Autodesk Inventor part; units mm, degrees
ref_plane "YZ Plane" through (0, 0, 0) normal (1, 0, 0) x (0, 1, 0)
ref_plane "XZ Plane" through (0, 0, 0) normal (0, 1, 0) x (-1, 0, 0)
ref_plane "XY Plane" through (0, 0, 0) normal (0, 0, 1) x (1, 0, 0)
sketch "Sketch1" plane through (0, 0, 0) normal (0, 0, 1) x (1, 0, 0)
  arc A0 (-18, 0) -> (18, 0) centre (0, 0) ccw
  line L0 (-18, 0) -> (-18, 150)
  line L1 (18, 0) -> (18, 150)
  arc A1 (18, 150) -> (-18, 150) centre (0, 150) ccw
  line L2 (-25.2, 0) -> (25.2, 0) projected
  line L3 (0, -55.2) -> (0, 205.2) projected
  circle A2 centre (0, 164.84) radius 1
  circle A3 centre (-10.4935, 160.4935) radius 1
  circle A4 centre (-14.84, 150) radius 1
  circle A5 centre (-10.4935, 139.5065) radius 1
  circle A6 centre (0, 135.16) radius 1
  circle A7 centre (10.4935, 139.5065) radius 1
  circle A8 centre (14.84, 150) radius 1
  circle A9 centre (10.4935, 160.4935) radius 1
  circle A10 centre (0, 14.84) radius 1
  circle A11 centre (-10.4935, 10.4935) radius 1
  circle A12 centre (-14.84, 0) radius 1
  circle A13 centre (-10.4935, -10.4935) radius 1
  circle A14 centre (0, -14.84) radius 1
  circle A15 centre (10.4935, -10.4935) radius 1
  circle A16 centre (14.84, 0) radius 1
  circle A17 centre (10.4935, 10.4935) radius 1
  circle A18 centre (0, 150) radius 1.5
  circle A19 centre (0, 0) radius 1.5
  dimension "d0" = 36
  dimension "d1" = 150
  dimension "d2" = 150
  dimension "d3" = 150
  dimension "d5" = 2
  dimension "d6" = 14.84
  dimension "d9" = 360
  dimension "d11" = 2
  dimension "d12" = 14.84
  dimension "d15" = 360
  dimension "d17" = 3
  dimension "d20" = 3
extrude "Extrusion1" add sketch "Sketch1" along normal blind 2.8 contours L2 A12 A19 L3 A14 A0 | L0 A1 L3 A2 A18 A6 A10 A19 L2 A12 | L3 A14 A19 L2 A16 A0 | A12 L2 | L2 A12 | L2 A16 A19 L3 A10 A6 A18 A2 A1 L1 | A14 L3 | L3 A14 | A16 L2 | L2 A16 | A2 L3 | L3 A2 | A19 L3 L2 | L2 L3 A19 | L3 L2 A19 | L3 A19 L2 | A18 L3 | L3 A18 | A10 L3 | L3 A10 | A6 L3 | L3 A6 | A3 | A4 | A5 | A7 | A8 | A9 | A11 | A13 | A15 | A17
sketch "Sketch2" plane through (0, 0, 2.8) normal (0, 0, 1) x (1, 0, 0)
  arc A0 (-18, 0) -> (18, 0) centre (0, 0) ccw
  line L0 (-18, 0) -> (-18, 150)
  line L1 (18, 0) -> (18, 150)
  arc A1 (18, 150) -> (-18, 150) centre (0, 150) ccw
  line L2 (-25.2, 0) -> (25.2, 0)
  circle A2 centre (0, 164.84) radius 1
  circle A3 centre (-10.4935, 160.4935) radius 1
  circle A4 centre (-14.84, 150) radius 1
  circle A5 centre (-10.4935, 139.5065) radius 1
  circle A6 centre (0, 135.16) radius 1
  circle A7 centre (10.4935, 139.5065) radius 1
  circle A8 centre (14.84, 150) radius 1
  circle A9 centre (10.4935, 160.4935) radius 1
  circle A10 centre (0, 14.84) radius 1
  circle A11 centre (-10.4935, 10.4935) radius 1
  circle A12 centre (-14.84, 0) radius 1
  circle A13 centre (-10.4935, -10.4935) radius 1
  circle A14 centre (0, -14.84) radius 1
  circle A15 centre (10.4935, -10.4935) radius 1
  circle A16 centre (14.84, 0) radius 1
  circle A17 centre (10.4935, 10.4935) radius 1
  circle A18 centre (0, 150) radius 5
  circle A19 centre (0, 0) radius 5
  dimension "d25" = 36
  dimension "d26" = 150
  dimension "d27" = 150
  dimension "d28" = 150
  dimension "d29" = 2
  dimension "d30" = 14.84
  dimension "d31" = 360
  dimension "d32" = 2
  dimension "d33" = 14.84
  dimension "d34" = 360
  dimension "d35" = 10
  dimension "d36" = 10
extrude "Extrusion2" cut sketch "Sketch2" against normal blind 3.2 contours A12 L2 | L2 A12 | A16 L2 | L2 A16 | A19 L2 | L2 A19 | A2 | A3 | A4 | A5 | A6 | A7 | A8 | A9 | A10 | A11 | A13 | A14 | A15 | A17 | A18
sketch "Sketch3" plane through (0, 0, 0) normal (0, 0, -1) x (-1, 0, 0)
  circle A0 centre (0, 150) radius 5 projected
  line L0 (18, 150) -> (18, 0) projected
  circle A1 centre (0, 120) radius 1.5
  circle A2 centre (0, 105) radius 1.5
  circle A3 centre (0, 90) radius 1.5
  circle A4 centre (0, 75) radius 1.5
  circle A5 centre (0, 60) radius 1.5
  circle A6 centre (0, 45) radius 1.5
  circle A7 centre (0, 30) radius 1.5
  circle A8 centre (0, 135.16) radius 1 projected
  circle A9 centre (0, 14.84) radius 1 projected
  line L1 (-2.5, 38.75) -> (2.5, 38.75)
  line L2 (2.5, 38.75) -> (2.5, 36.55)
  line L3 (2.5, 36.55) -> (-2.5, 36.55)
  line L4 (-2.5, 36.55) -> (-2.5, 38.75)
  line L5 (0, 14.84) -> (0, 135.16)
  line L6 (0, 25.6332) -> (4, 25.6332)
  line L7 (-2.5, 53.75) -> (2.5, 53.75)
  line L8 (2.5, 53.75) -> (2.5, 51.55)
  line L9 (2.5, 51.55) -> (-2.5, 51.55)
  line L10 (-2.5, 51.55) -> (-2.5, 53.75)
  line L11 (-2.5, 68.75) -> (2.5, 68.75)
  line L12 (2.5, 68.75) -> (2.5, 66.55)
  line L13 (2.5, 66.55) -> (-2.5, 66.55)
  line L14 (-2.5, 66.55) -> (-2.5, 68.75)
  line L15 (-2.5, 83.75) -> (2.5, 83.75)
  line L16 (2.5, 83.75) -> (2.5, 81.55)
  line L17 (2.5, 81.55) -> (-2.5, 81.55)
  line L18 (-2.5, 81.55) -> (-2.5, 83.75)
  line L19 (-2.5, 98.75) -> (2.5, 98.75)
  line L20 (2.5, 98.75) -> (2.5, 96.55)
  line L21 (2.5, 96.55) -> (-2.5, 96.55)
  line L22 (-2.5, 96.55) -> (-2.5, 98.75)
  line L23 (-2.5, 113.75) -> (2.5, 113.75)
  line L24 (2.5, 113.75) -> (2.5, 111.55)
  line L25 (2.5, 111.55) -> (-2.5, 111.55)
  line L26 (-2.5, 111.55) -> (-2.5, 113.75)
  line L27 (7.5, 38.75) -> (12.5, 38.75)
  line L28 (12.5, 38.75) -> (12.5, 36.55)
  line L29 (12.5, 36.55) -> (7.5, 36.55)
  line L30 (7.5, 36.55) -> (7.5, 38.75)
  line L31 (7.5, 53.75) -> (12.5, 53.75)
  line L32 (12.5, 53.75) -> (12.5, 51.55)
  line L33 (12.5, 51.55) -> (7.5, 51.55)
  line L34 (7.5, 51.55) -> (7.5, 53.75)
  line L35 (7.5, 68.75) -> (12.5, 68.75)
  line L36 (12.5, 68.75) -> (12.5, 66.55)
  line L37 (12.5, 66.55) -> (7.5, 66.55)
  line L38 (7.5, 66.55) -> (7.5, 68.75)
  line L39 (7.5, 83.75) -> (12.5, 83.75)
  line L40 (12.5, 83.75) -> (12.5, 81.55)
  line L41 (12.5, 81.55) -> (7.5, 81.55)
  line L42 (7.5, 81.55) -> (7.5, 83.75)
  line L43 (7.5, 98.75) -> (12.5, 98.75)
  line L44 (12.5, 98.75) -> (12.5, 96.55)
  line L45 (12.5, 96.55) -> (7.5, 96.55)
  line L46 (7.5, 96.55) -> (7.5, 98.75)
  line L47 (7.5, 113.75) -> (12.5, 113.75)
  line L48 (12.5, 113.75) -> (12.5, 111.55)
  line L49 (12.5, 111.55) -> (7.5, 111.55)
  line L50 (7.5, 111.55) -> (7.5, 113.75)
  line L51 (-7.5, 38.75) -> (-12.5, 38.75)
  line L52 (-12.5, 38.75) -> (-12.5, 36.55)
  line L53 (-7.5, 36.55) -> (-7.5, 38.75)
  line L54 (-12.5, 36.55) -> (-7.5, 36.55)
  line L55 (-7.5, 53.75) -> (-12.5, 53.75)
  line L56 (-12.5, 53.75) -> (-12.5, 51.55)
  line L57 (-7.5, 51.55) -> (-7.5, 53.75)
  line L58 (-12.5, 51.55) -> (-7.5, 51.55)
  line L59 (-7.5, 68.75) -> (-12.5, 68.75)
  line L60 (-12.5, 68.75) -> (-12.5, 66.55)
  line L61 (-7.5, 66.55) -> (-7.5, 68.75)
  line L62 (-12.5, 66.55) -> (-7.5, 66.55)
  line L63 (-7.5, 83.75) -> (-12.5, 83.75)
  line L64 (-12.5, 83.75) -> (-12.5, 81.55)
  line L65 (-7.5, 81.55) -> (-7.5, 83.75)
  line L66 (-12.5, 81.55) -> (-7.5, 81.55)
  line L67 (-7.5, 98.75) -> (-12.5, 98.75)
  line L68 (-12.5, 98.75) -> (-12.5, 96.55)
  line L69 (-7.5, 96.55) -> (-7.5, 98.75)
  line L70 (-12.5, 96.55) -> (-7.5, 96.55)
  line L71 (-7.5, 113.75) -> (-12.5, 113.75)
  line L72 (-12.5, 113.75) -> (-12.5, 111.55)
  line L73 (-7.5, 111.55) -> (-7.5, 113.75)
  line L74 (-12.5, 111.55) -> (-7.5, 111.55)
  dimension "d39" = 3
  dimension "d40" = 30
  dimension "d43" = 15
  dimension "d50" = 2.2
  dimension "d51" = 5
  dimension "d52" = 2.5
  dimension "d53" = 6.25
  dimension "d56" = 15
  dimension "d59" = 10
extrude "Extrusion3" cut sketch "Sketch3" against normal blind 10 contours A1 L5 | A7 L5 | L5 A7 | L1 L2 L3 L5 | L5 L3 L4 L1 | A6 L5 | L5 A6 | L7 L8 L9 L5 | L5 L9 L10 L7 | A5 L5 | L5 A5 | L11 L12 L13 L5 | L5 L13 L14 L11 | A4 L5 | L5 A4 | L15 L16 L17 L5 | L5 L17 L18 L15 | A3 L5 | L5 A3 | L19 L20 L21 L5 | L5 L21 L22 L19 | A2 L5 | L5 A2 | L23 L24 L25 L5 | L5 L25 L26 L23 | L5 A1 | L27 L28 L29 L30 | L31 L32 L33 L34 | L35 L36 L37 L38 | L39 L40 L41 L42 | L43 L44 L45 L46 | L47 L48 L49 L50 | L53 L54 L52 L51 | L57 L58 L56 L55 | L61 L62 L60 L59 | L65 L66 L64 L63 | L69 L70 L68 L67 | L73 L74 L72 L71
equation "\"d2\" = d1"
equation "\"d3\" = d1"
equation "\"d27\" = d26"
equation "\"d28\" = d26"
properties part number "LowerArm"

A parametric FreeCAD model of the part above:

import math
import FreeCAD as App
import Part
import Sketcher
Q = App.Units.Quantity


def add_polygon(sketch, points):
    """Adds a closed chain of lines whose ends are joined by coincident constraints."""
    first, n = sketch.GeometryCount, len(points)
    for a, b in zip(points, points[1:] + points[:1]):
        sketch.addGeometry(Part.LineSegment(App.Vector(*a, 0), App.Vector(*b, 0)), False)
    for i in range(n):
        sketch.addConstraint(Sketcher.Constraint("Coincident", first + i, 2, first + (i + 1) % n, 1))

doc = App.newDocument("Part")
body = doc.addObject("PartDesign::Body", "Body")

sketch1 = body.newObject("Sketcher::SketchObject", "Sketch")
sketch1.AttachmentSupport = (doc.getObject("XY_Plane"), [""])
sketch1.MapMode = "FlatFace"
sketch1.addGeometry(Part.ArcOfCircle(Part.Circle(App.Vector(0, 0, 0), App.Vector(0, 0, 1), 18), math.radians(180), math.radians(360)), False)
sketch1.addGeometry(Part.LineSegment(App.Vector(18, 0, 0), App.Vector(18, 150, 0)), False)
sketch1.addGeometry(Part.ArcOfCircle(Part.Circle(App.Vector(0, 150, 0), App.Vector(0, 0, 1), 18), math.radians(0), math.radians(180)), False)
sketch1.addGeometry(Part.LineSegment(App.Vector(-18, 150, 0), App.Vector(-18, 0, 0)), False)
sketch1.addConstraint(Sketcher.Constraint("Tangent", 0, 2, 1, 1))
sketch1.addConstraint(Sketcher.Constraint("Tangent", 1, 2, 2, 1))
sketch1.addConstraint(Sketcher.Constraint("Tangent", 2, 2, 3, 1))
sketch1.addConstraint(Sketcher.Constraint("Tangent", 3, 2, 0, 1))
sketch1.addConstraint(Sketcher.Constraint("Vertical", 1))
sketch1.addConstraint(Sketcher.Constraint("Vertical", 3))
sketch1.addConstraint(Sketcher.Constraint("Coincident", 0, 3, -1, 1))
sketch1.addConstraint(Sketcher.Constraint("Radius", 0, Q("18 mm")))
sketch1.addConstraint(Sketcher.Constraint("DistanceY", 1, 1, 1, 2, Q("150 mm")))
pad1 = body.newObject("PartDesign::Pad", "Pad")
pad1.Profile = sketch1
pad1.Length = 2.8

sketch2 = body.newObject("Sketcher::SketchObject", "Sketch001")
sketch2.AttachmentSupport = (doc.getObject("XY_Plane"), [""])
sketch2.MapMode = "FlatFace"
sketch2.AttachmentOffset = App.Placement(App.Vector(0, 0, 2.8), App.Rotation())
sketch2.addGeometry(Part.Circle(App.Vector(-14.8, 0, 0), App.Vector(0, 0, 1), 1), False)
sketch2.addGeometry(Part.Circle(App.Vector(14.8, 0, 0), App.Vector(0, 0, 1), 1), False)
sketch2.addGeometry(Part.Circle(App.Vector(0, 0, 0), App.Vector(0, 0, 1), 5), False)
sketch2.addGeometry(Part.Circle(App.Vector(0, 164.8, 0), App.Vector(0, 0, 1), 1), False)
sketch2.addGeometry(Part.Circle(App.Vector(-10.5, 160.5, 0), App.Vector(0, 0, 1), 1), False)
sketch2.addGeometry(Part.Circle(App.Vector(-14.8, 150, 0), App.Vector(0, 0, 1), 1), False)
sketch2.addGeometry(Part.Circle(App.Vector(-10.5, 139.5, 0), App.Vector(0, 0, 1), 1), False)
sketch2.addGeometry(Part.Circle(App.Vector(0, 135.2, 0), App.Vector(0, 0, 1), 1), False)
sketch2.addGeometry(Part.Circle(App.Vector(10.5, 139.5, 0), App.Vector(0, 0, 1), 1), False)
sketch2.addGeometry(Part.Circle(App.Vector(14.8, 150, 0), App.Vector(0, 0, 1), 1), False)
sketch2.addGeometry(Part.Circle(App.Vector(10.5, 160.5, 0), App.Vector(0, 0, 1), 1), False)
sketch2.addGeometry(Part.Circle(App.Vector(0, 14.8, 0), App.Vector(0, 0, 1), 1), False)
sketch2.addGeometry(Part.Circle(App.Vector(-10.5, 10.5, 0), App.Vector(0, 0, 1), 1), False)
sketch2.addGeometry(Part.Circle(App.Vector(-10.5, -10.5, 0), App.Vector(0, 0, 1), 1), False)
sketch2.addGeometry(Part.Circle(App.Vector(0, -14.8, 0), App.Vector(0, 0, 1), 1), False)
sketch2.addGeometry(Part.Circle(App.Vector(10.5, -10.5, 0), App.Vector(0, 0, 1), 1), False)
sketch2.addGeometry(Part.Circle(App.Vector(10.5, 10.5, 0), App.Vector(0, 0, 1), 1), False)
sketch2.addGeometry(Part.Circle(App.Vector(0, 150, 0), App.Vector(0, 0, 1), 5), False)
sketch2.addConstraint(Sketcher.Constraint("Coincident", 2, 3, -1, 1))
sketch2.addConstraint(Sketcher.Constraint("Equal", 0, 1))
sketch2.addConstraint(Sketcher.Constraint("Equal", 1, 3))
sketch2.addConstraint(Sketcher.Constraint("Equal", 3, 4))
sketch2.addConstraint(Sketcher.Constraint("Equal", 4, 5))
sketch2.addConstraint(Sketcher.Constraint("Equal", 5, 6))
sketch2.addConstraint(Sketcher.Constraint("Equal", 6, 7))
sketch2.addConstraint(Sketcher.Constraint("Equal", 7, 8))
sketch2.addConstraint(Sketcher.Constraint("Equal", 8, 9))
sketch2.addConstraint(Sketcher.Constraint("Equal", 9, 10))
sketch2.addConstraint(Sketcher.Constraint("Equal", 10, 11))
sketch2.addConstraint(Sketcher.Constraint("Equal", 11, 12))
sketch2.addConstraint(Sketcher.Constraint("Equal", 12, 13))
sketch2.addConstraint(Sketcher.Constraint("Equal", 13, 14))
sketch2.addConstraint(Sketcher.Constraint("Equal", 14, 15))
sketch2.addConstraint(Sketcher.Constraint("Equal", 15, 16))
sketch2.addConstraint(Sketcher.Constraint("Equal", 2, 17))
sketch2.addConstraint(Sketcher.Constraint("Symmetric", 0, 3, 1, 3, -1, 1))
sketch2.addConstraint(Sketcher.Constraint("Symmetric", 11, 3, 14, 3, -1, 1))
sketch2.addConstraint(Sketcher.Constraint("Symmetric", 12, 3, 15, 3, -1, 1))
sketch2.addConstraint(Sketcher.Constraint("Symmetric", 13, 3, 16, 3, -1, 1))
sketch2.addConstraint(Sketcher.Constraint("Symmetric", 6, 3, 8, 3, -2))
sketch2.addConstraint(Sketcher.Constraint("Symmetric", 5, 3, 9, 3, -2))
sketch2.addConstraint(Sketcher.Constraint("Symmetric", 4, 3, 10, 3, -2))
sketch2.addConstraint(Sketcher.Constraint("Symmetric", 13, 3, 15, 3, -2))
sketch2.addConstraint(Sketcher.Constraint("PointOnObject", 0, 3, -1))
sketch2.addConstraint(Sketcher.Constraint("PointOnObject", 3, 3, -2))
sketch2.addConstraint(Sketcher.Constraint("PointOnObject", 7, 3, -2))
sketch2.addConstraint(Sketcher.Constraint("PointOnObject", 11, 3, -2))
sketch2.addConstraint(Sketcher.Constraint("PointOnObject", 17, 3, -2))
sketch2.addConstraint(Sketcher.Constraint("Horizontal", 9, 3, 17, 3))
sketch2.addConstraint(Sketcher.Constraint("Vertical", 0, 3, 5, 3))
sketch2.addConstraint(Sketcher.Constraint("Vertical", 4, 3, 6, 3))
sketch2.addConstraint(Sketcher.Constraint("Vertical", 6, 3, 12, 3))
sketch2.addConstraint(Sketcher.Constraint("Diameter", 0, Q("2 mm")))
sketch2.addConstraint(Sketcher.Constraint("Diameter", 2, Q("10 mm")))
sketch2.addConstraint(Sketcher.Constraint("DistanceY", -1, 1, 5, 3, Q("150 mm")))
sketch2.addConstraint(Sketcher.Constraint("DistanceX", 0, 3, -1, 1, Q("14.84 mm")))
sketch2.addConstraint(Sketcher.Constraint("DistanceY", -1, 1, 11, 3, Q("14.84 mm")))
sketch2.addConstraint(Sketcher.Constraint("DistanceY", 5, 3, 3, 3, Q("14.84 mm")))
sketch2.addConstraint(Sketcher.Constraint("DistanceY", 7, 3, 5, 3, Q("14.84 mm")))
sketch2.addConstraint(Sketcher.Constraint("DistanceY", 6, 3, 4, 3, Q("20.987 mm")))
sketch2.addConstraint(Sketcher.Constraint("DistanceX", 6, 3, 8, 3, Q("20.987 mm")))
sketch2.addConstraint(Sketcher.Constraint("DistanceY", 13, 3, 12, 3, Q("20.987 mm")))
sketch2.addConstraint(Sketcher.Constraint("DistanceY", -1, 1, 4, 3, Q("160.4935 mm")))
pocket1 = body.newObject("PartDesign::Pocket", "Pocket")
pocket1.Profile = sketch2
pocket1.Length = 3.2

sketch3 = body.newObject("Sketcher::SketchObject", "Sketch002")
sketch3.AttachmentSupport = (doc.getObject("XY_Plane"), [""])
sketch3.MapMode = "FlatFace"
sketch3.addGeometry(Part.Circle(App.Vector(0, 120, 0), App.Vector(0, 0, 1), 1.5), False)
sketch3.addGeometry(Part.Circle(App.Vector(0, 30, 0), App.Vector(0, 0, 1), 1.5), False)
add_polygon(sketch3, [(-2.5, 38.8), (2.5, 38.8), (2.5, 36.5), (-2.5, 36.5)])
sketch3.addGeometry(Part.Circle(App.Vector(0, 45, 0), App.Vector(0, 0, 1), 1.5), False)
add_polygon(sketch3, [(-2.5, 53.8), (2.5, 53.8), (2.5, 51.5), (-2.5, 51.5)])
sketch3.addGeometry(Part.Circle(App.Vector(0, 60, 0), App.Vector(0, 0, 1), 1.5), False)
add_polygon(sketch3, [(-2.5, 68.8), (2.5, 68.8), (2.5, 66.5), (-2.5, 66.5)])
sketch3.addGeometry(Part.Circle(App.Vector(0, 75, 0), App.Vector(0, 0, 1), 1.5), False)
add_polygon(sketch3, [(-2.5, 83.8), (2.5, 83.8), (2.5, 81.5), (-2.5, 81.5)])
sketch3.addGeometry(Part.Circle(App.Vector(0, 90, 0), App.Vector(0, 0, 1), 1.5), False)
add_polygon(sketch3, [(-2.5, 98.8), (2.5, 98.8), (2.5, 96.5), (-2.5, 96.5)])
sketch3.addGeometry(Part.Circle(App.Vector(0, 105, 0), App.Vector(0, 0, 1), 1.5), False)
add_polygon(sketch3, [(-2.5, 113.8), (2.5, 113.8), (2.5, 111.5), (-2.5, 111.5)])
add_polygon(sketch3, [(-12.5, 38.8), (-7.5, 38.8), (-7.5, 36.5), (-12.5, 36.5)])
add_polygon(sketch3, [(-12.5, 53.8), (-7.5, 53.8), (-7.5, 51.5), (-12.5, 51.5)])
add_polygon(sketch3, [(-12.5, 68.8), (-7.5, 68.8), (-7.5, 66.5), (-12.5, 66.5)])
add_polygon(sketch3, [(-12.5, 83.8), (-7.5, 83.8), (-7.5, 81.5), (-12.5, 81.5)])
add_polygon(sketch3, [(-12.5, 98.8), (-7.5, 98.8), (-7.5, 96.5), (-12.5, 96.5)])
add_polygon(sketch3, [(-12.5, 113.8), (-7.5, 113.8), (-7.5, 111.5), (-12.5, 111.5)])
add_polygon(sketch3, [(7.5, 36.5), (7.5, 38.8), (12.5, 38.8), (12.5, 36.5)])
add_polygon(sketch3, [(7.5, 51.5), (7.5, 53.8), (12.5, 53.8), (12.5, 51.5)])
add_polygon(sketch3, [(7.5, 66.5), (7.5, 68.8), (12.5, 68.8), (12.5, 66.5)])
add_polygon(sketch3, [(7.5, 81.5), (7.5, 83.8), (12.5, 83.8), (12.5, 81.5)])
add_polygon(sketch3, [(7.5, 96.5), (7.5, 98.8), (12.5, 98.8), (12.5, 96.5)])
add_polygon(sketch3, [(7.5, 111.5), (7.5, 113.8), (12.5, 113.8), (12.5, 111.5)])
sketch3.addConstraint(Sketcher.Constraint("Horizontal", 2))
sketch3.addConstraint(Sketcher.Constraint("Vertical", 3))
sketch3.addConstraint(Sketcher.Constraint("Horizontal", 4))
sketch3.addConstraint(Sketcher.Constraint("Vertical", 5))
sketch3.addConstraint(Sketcher.Constraint("Horizontal", 7))
sketch3.addConstraint(Sketcher.Constraint("Vertical", 8))
sketch3.addConstraint(Sketcher.Constraint("Horizontal", 9))
sketch3.addConstraint(Sketcher.Constraint("Vertical", 10))
sketch3.addConstraint(Sketcher.Constraint("Horizontal", 12))
sketch3.addConstraint(Sketcher.Constraint("Vertical", 13))
sketch3.addConstraint(Sketcher.Constraint("Horizontal", 14))
sketch3.addConstraint(Sketcher.Constraint("Vertical", 15))
sketch3.addConstraint(Sketcher.Constraint("Horizontal", 17))
sketch3.addConstraint(Sketcher.Constraint("Vertical", 18))
sketch3.addConstraint(Sketcher.Constraint("Horizontal", 19))
sketch3.addConstraint(Sketcher.Constraint("Vertical", 20))
sketch3.addConstraint(Sketcher.Constraint("Horizontal", 22))
sketch3.addConstraint(Sketcher.Constraint("Vertical", 23))
sketch3.addConstraint(Sketcher.Constraint("Horizontal", 24))
sketch3.addConstraint(Sketcher.Constraint("Vertical", 25))
sketch3.addConstraint(Sketcher.Constraint("Horizontal", 27))
sketch3.addConstraint(Sketcher.Constraint("Vertical", 28))
sketch3.addConstraint(Sketcher.Constraint("Horizontal", 29))
sketch3.addConstraint(Sketcher.Constraint("Vertical", 30))
sketch3.addConstraint(Sketcher.Constraint("Horizontal", 31))
sketch3.addConstraint(Sketcher.Constraint("Vertical", 32))
sketch3.addConstraint(Sketcher.Constraint("Horizontal", 33))
sketch3.addConstraint(Sketcher.Constraint("Vertical", 34))
sketch3.addConstraint(Sketcher.Constraint("Horizontal", 35))
sketch3.addConstraint(Sketcher.Constraint("Vertical", 36))
sketch3.addConstraint(Sketcher.Constraint("Horizontal", 37))
sketch3.addConstraint(Sketcher.Constraint("Vertical", 38))
sketch3.addConstraint(Sketcher.Constraint("Horizontal", 39))
sketch3.addConstraint(Sketcher.Constraint("Vertical", 40))
sketch3.addConstraint(Sketcher.Constraint("Horizontal", 41))
sketch3.addConstraint(Sketcher.Constraint("Vertical", 42))
sketch3.addConstraint(Sketcher.Constraint("Horizontal", 43))
sketch3.addConstraint(Sketcher.Constraint("Vertical", 44))
sketch3.addConstraint(Sketcher.Constraint("Horizontal", 45))
sketch3.addConstraint(Sketcher.Constraint("Vertical", 46))
sketch3.addConstraint(Sketcher.Constraint("Horizontal", 47))
sketch3.addConstraint(Sketcher.Constraint("Vertical", 48))
sketch3.addConstraint(Sketcher.Constraint("Horizontal", 49))
sketch3.addConstraint(Sketcher.Constraint("Vertical", 50))
sketch3.addConstraint(Sketcher.Constraint("Horizontal", 51))
sketch3.addConstraint(Sketcher.Constraint("Vertical", 52))
sketch3.addConstraint(Sketcher.Constraint("Horizontal", 53))
sketch3.addConstraint(Sketcher.Constraint("Vertical", 54))
sketch3.addConstraint(Sketcher.Constraint("Vertical", 55))
sketch3.addConstraint(Sketcher.Constraint("Horizontal", 56))
sketch3.addConstraint(Sketcher.Constraint("Vertical", 57))
sketch3.addConstraint(Sketcher.Constraint("Horizontal", 58))
sketch3.addConstraint(Sketcher.Constraint("Vertical", 59))
sketch3.addConstraint(Sketcher.Constraint("Horizontal", 60))
sketch3.addConstraint(Sketcher.Constraint("Vertical", 61))
sketch3.addConstraint(Sketcher.Constraint("Horizontal", 62))
sketch3.addConstraint(Sketcher.Constraint("Vertical", 63))
sketch3.addConstraint(Sketcher.Constraint("Horizontal", 64))
sketch3.addConstraint(Sketcher.Constraint("Vertical", 65))
sketch3.addConstraint(Sketcher.Constraint("Horizontal", 66))
sketch3.addConstraint(Sketcher.Constraint("Vertical", 67))
sketch3.addConstraint(Sketcher.Constraint("Horizontal", 68))
sketch3.addConstraint(Sketcher.Constraint("Vertical", 69))
sketch3.addConstraint(Sketcher.Constraint("Horizontal", 70))
sketch3.addConstraint(Sketcher.Constraint("Vertical", 71))
sketch3.addConstraint(Sketcher.Constraint("Horizontal", 72))
sketch3.addConstraint(Sketcher.Constraint("Vertical", 73))
sketch3.addConstraint(Sketcher.Constraint("Horizontal", 74))
sketch3.addConstraint(Sketcher.Constraint("Vertical", 75))
sketch3.addConstraint(Sketcher.Constraint("Horizontal", 76))
sketch3.addConstraint(Sketcher.Constraint("Vertical", 77))
sketch3.addConstraint(Sketcher.Constraint("Horizontal", 78))
sketch3.addConstraint(Sketcher.Constraint("Equal", 0, 1))
sketch3.addConstraint(Sketcher.Constraint("Equal", 1, 6))
sketch3.addConstraint(Sketcher.Constraint("Equal", 6, 11))
sketch3.addConstraint(Sketcher.Constraint("Equal", 11, 16))
sketch3.addConstraint(Sketcher.Constraint("Equal", 16, 21))
sketch3.addConstraint(Sketcher.Constraint("Equal", 21, 26))
sketch3.addConstraint(Sketcher.Constraint("Symmetric", 31, 2, 55, 2, -2))
sketch3.addConstraint(Sketcher.Constraint("Symmetric", 33, 2, 57, 2, -2))
sketch3.addConstraint(Sketcher.Constraint("Symmetric", 35, 2, 59, 2, -2))
sketch3.addConstraint(Sketcher.Constraint("Symmetric", 37, 2, 61, 2, -2))
sketch3.addConstraint(Sketcher.Constraint("Symmetric", 39, 2, 63, 2, -2))
sketch3.addConstraint(Sketcher.Constraint("Symmetric", 41, 2, 65, 2, -2))
sketch3.addConstraint(Sketcher.Constraint("Symmetric", 43, 2, 67, 2, -2))
sketch3.addConstraint(Sketcher.Constraint("Symmetric", 45, 2, 69, 2, -2))
sketch3.addConstraint(Sketcher.Constraint("Symmetric", 47, 2, 71, 2, -2))
sketch3.addConstraint(Sketcher.Constraint("Symmetric", 49, 2, 73, 2, -2))
sketch3.addConstraint(Sketcher.Constraint("Symmetric", 51, 2, 75, 2, -2))
sketch3.addConstraint(Sketcher.Constraint("Symmetric", 53, 2, 77, 2, -2))
sketch3.addConstraint(Sketcher.Constraint("PointOnObject", 0, 3, -2))
sketch3.addConstraint(Sketcher.Constraint("PointOnObject", 1, 3, -2))
sketch3.addConstraint(Sketcher.Constraint("PointOnObject", 6, 3, -2))
sketch3.addConstraint(Sketcher.Constraint("PointOnObject", 11, 3, -2))
sketch3.addConstraint(Sketcher.Constraint("PointOnObject", 16, 3, -2))
sketch3.addConstraint(Sketcher.Constraint("PointOnObject", 21, 3, -2))
sketch3.addConstraint(Sketcher.Constraint("PointOnObject", 26, 3, -2))
sketch3.addConstraint(Sketcher.Constraint("Horizontal", 5, 2, 31, 2))
sketch3.addConstraint(Sketcher.Constraint("Horizontal", 4, 2, 32, 2))
sketch3.addConstraint(Sketcher.Constraint("Horizontal", 10, 2, 35, 2))
sketch3.addConstraint(Sketcher.Constraint("Horizontal", 9, 2, 36, 2))
sketch3.addConstraint(Sketcher.Constraint("Horizontal", 15, 2, 39, 2))
sketch3.addConstraint(Sketcher.Constraint("Horizontal", 14, 2, 40, 2))
sketch3.addConstraint(Sketcher.Constraint("Horizontal", 20, 2, 43, 2))
sketch3.addConstraint(Sketcher.Constraint("Horizontal", 19, 2, 44, 2))
sketch3.addConstraint(Sketcher.Constraint("Horizontal", 25, 2, 47, 2))
sketch3.addConstraint(Sketcher.Constraint("Horizontal", 24, 2, 48, 2))
sketch3.addConstraint(Sketcher.Constraint("Horizontal", 30, 2, 51, 2))
sketch3.addConstraint(Sketcher.Constraint("Horizontal", 29, 2, 52, 2))
sketch3.addConstraint(Sketcher.Constraint("Vertical", 3, 2, 7, 2))
sketch3.addConstraint(Sketcher.Constraint("Vertical", 5, 2, 9, 2))
sketch3.addConstraint(Sketcher.Constraint("Vertical", 8, 2, 12, 2))
sketch3.addConstraint(Sketcher.Constraint("Vertical", 10, 2, 14, 2))
sketch3.addConstraint(Sketcher.Constraint("Vertical", 13, 2, 17, 2))
sketch3.addConstraint(Sketcher.Constraint("Vertical", 15, 2, 19, 2))
sketch3.addConstraint(Sketcher.Constraint("Vertical", 18, 2, 22, 2))
sketch3.addConstraint(Sketcher.Constraint("Vertical", 20, 2, 24, 2))
sketch3.addConstraint(Sketcher.Constraint("Vertical", 23, 2, 27, 2))
sketch3.addConstraint(Sketcher.Constraint("Vertical", 25, 2, 29, 2))
sketch3.addConstraint(Sketcher.Constraint("Vertical", 32, 2, 35, 2))
sketch3.addConstraint(Sketcher.Constraint("Vertical", 34, 2, 37, 2))
sketch3.addConstraint(Sketcher.Constraint("Vertical", 36, 2, 39, 2))
sketch3.addConstraint(Sketcher.Constraint("Vertical", 38, 2, 41, 2))
sketch3.addConstraint(Sketcher.Constraint("Vertical", 40, 2, 43, 2))
sketch3.addConstraint(Sketcher.Constraint("Vertical", 42, 2, 45, 2))
sketch3.addConstraint(Sketcher.Constraint("Vertical", 44, 2, 47, 2))
sketch3.addConstraint(Sketcher.Constraint("Vertical", 46, 2, 49, 2))
sketch3.addConstraint(Sketcher.Constraint("Vertical", 48, 2, 51, 2))
sketch3.addConstraint(Sketcher.Constraint("Vertical", 50, 2, 53, 2))
sketch3.addConstraint(Sketcher.Constraint("Equal", 29, 31))
sketch3.addConstraint(Sketcher.Constraint("Equal", 5, 8))
sketch3.addConstraint(Sketcher.Constraint("Equal", 10, 13))
sketch3.addConstraint(Sketcher.Constraint("Equal", 15, 18))
sketch3.addConstraint(Sketcher.Constraint("Equal", 20, 23))
sketch3.addConstraint(Sketcher.Constraint("Equal", 25, 28))
sketch3.addConstraint(Sketcher.Constraint("Diameter", 0, Q("3 mm")))
sketch3.addConstraint(Sketcher.Constraint("DistanceX", 2, 1, 2, 2, Q("5 mm")))
sketch3.addConstraint(Sketcher.Constraint("DistanceY", 3, 2, 3, 1, Q("2.2 mm")))
sketch3.addConstraint(Sketcher.Constraint("DistanceY", -1, 1, 1, 3, Q("30 mm")))
sketch3.addConstraint(Sketcher.Constraint("DistanceX", -1, 1, 2, 2, Q("2.5 mm")))
sketch3.addConstraint(Sketcher.Constraint("DistanceY", -1, 1, 0, 3, Q("120 mm")))
sketch3.addConstraint(Sketcher.Constraint("DistanceY", -1, 1, 6, 3, Q("45 mm")))
sketch3.addConstraint(Sketcher.Constraint("DistanceY", -1, 1, 11, 3, Q("60 mm")))
sketch3.addConstraint(Sketcher.Constraint("DistanceY", -1, 1, 16, 3, Q("75 mm")))
sketch3.addConstraint(Sketcher.Constraint("DistanceY", -1, 1, 21, 3, Q("90 mm")))
sketch3.addConstraint(Sketcher.Constraint("DistanceY", -1, 1, 26, 3, Q("105 mm")))
sketch3.addConstraint(Sketcher.Constraint("DistanceX", 31, 2, -1, 1, Q("7.5 mm")))
sketch3.addConstraint(Sketcher.Constraint("DistanceY", -1, 1, 2, 2, Q("38.75 mm")))
sketch3.addConstraint(Sketcher.Constraint("DistanceY", -1, 1, 7, 2, Q("53.75 mm")))
sketch3.addConstraint(Sketcher.Constraint("DistanceY", -1, 1, 12, 2, Q("68.75 mm")))
sketch3.addConstraint(Sketcher.Constraint("DistanceY", -1, 1, 17, 2, Q("83.75 mm")))
sketch3.addConstraint(Sketcher.Constraint("DistanceY", -1, 1, 22, 2, Q("98.75 mm")))
sketch3.addConstraint(Sketcher.Constraint("DistanceY", -1, 1, 27, 2, Q("113.75 mm")))
pocket2 = body.newObject("PartDesign::Pocket", "Pocket001")
pocket2.Profile = sketch3
pocket2.Length = 10
pocket2.Reversed = True

doc.recompute()
